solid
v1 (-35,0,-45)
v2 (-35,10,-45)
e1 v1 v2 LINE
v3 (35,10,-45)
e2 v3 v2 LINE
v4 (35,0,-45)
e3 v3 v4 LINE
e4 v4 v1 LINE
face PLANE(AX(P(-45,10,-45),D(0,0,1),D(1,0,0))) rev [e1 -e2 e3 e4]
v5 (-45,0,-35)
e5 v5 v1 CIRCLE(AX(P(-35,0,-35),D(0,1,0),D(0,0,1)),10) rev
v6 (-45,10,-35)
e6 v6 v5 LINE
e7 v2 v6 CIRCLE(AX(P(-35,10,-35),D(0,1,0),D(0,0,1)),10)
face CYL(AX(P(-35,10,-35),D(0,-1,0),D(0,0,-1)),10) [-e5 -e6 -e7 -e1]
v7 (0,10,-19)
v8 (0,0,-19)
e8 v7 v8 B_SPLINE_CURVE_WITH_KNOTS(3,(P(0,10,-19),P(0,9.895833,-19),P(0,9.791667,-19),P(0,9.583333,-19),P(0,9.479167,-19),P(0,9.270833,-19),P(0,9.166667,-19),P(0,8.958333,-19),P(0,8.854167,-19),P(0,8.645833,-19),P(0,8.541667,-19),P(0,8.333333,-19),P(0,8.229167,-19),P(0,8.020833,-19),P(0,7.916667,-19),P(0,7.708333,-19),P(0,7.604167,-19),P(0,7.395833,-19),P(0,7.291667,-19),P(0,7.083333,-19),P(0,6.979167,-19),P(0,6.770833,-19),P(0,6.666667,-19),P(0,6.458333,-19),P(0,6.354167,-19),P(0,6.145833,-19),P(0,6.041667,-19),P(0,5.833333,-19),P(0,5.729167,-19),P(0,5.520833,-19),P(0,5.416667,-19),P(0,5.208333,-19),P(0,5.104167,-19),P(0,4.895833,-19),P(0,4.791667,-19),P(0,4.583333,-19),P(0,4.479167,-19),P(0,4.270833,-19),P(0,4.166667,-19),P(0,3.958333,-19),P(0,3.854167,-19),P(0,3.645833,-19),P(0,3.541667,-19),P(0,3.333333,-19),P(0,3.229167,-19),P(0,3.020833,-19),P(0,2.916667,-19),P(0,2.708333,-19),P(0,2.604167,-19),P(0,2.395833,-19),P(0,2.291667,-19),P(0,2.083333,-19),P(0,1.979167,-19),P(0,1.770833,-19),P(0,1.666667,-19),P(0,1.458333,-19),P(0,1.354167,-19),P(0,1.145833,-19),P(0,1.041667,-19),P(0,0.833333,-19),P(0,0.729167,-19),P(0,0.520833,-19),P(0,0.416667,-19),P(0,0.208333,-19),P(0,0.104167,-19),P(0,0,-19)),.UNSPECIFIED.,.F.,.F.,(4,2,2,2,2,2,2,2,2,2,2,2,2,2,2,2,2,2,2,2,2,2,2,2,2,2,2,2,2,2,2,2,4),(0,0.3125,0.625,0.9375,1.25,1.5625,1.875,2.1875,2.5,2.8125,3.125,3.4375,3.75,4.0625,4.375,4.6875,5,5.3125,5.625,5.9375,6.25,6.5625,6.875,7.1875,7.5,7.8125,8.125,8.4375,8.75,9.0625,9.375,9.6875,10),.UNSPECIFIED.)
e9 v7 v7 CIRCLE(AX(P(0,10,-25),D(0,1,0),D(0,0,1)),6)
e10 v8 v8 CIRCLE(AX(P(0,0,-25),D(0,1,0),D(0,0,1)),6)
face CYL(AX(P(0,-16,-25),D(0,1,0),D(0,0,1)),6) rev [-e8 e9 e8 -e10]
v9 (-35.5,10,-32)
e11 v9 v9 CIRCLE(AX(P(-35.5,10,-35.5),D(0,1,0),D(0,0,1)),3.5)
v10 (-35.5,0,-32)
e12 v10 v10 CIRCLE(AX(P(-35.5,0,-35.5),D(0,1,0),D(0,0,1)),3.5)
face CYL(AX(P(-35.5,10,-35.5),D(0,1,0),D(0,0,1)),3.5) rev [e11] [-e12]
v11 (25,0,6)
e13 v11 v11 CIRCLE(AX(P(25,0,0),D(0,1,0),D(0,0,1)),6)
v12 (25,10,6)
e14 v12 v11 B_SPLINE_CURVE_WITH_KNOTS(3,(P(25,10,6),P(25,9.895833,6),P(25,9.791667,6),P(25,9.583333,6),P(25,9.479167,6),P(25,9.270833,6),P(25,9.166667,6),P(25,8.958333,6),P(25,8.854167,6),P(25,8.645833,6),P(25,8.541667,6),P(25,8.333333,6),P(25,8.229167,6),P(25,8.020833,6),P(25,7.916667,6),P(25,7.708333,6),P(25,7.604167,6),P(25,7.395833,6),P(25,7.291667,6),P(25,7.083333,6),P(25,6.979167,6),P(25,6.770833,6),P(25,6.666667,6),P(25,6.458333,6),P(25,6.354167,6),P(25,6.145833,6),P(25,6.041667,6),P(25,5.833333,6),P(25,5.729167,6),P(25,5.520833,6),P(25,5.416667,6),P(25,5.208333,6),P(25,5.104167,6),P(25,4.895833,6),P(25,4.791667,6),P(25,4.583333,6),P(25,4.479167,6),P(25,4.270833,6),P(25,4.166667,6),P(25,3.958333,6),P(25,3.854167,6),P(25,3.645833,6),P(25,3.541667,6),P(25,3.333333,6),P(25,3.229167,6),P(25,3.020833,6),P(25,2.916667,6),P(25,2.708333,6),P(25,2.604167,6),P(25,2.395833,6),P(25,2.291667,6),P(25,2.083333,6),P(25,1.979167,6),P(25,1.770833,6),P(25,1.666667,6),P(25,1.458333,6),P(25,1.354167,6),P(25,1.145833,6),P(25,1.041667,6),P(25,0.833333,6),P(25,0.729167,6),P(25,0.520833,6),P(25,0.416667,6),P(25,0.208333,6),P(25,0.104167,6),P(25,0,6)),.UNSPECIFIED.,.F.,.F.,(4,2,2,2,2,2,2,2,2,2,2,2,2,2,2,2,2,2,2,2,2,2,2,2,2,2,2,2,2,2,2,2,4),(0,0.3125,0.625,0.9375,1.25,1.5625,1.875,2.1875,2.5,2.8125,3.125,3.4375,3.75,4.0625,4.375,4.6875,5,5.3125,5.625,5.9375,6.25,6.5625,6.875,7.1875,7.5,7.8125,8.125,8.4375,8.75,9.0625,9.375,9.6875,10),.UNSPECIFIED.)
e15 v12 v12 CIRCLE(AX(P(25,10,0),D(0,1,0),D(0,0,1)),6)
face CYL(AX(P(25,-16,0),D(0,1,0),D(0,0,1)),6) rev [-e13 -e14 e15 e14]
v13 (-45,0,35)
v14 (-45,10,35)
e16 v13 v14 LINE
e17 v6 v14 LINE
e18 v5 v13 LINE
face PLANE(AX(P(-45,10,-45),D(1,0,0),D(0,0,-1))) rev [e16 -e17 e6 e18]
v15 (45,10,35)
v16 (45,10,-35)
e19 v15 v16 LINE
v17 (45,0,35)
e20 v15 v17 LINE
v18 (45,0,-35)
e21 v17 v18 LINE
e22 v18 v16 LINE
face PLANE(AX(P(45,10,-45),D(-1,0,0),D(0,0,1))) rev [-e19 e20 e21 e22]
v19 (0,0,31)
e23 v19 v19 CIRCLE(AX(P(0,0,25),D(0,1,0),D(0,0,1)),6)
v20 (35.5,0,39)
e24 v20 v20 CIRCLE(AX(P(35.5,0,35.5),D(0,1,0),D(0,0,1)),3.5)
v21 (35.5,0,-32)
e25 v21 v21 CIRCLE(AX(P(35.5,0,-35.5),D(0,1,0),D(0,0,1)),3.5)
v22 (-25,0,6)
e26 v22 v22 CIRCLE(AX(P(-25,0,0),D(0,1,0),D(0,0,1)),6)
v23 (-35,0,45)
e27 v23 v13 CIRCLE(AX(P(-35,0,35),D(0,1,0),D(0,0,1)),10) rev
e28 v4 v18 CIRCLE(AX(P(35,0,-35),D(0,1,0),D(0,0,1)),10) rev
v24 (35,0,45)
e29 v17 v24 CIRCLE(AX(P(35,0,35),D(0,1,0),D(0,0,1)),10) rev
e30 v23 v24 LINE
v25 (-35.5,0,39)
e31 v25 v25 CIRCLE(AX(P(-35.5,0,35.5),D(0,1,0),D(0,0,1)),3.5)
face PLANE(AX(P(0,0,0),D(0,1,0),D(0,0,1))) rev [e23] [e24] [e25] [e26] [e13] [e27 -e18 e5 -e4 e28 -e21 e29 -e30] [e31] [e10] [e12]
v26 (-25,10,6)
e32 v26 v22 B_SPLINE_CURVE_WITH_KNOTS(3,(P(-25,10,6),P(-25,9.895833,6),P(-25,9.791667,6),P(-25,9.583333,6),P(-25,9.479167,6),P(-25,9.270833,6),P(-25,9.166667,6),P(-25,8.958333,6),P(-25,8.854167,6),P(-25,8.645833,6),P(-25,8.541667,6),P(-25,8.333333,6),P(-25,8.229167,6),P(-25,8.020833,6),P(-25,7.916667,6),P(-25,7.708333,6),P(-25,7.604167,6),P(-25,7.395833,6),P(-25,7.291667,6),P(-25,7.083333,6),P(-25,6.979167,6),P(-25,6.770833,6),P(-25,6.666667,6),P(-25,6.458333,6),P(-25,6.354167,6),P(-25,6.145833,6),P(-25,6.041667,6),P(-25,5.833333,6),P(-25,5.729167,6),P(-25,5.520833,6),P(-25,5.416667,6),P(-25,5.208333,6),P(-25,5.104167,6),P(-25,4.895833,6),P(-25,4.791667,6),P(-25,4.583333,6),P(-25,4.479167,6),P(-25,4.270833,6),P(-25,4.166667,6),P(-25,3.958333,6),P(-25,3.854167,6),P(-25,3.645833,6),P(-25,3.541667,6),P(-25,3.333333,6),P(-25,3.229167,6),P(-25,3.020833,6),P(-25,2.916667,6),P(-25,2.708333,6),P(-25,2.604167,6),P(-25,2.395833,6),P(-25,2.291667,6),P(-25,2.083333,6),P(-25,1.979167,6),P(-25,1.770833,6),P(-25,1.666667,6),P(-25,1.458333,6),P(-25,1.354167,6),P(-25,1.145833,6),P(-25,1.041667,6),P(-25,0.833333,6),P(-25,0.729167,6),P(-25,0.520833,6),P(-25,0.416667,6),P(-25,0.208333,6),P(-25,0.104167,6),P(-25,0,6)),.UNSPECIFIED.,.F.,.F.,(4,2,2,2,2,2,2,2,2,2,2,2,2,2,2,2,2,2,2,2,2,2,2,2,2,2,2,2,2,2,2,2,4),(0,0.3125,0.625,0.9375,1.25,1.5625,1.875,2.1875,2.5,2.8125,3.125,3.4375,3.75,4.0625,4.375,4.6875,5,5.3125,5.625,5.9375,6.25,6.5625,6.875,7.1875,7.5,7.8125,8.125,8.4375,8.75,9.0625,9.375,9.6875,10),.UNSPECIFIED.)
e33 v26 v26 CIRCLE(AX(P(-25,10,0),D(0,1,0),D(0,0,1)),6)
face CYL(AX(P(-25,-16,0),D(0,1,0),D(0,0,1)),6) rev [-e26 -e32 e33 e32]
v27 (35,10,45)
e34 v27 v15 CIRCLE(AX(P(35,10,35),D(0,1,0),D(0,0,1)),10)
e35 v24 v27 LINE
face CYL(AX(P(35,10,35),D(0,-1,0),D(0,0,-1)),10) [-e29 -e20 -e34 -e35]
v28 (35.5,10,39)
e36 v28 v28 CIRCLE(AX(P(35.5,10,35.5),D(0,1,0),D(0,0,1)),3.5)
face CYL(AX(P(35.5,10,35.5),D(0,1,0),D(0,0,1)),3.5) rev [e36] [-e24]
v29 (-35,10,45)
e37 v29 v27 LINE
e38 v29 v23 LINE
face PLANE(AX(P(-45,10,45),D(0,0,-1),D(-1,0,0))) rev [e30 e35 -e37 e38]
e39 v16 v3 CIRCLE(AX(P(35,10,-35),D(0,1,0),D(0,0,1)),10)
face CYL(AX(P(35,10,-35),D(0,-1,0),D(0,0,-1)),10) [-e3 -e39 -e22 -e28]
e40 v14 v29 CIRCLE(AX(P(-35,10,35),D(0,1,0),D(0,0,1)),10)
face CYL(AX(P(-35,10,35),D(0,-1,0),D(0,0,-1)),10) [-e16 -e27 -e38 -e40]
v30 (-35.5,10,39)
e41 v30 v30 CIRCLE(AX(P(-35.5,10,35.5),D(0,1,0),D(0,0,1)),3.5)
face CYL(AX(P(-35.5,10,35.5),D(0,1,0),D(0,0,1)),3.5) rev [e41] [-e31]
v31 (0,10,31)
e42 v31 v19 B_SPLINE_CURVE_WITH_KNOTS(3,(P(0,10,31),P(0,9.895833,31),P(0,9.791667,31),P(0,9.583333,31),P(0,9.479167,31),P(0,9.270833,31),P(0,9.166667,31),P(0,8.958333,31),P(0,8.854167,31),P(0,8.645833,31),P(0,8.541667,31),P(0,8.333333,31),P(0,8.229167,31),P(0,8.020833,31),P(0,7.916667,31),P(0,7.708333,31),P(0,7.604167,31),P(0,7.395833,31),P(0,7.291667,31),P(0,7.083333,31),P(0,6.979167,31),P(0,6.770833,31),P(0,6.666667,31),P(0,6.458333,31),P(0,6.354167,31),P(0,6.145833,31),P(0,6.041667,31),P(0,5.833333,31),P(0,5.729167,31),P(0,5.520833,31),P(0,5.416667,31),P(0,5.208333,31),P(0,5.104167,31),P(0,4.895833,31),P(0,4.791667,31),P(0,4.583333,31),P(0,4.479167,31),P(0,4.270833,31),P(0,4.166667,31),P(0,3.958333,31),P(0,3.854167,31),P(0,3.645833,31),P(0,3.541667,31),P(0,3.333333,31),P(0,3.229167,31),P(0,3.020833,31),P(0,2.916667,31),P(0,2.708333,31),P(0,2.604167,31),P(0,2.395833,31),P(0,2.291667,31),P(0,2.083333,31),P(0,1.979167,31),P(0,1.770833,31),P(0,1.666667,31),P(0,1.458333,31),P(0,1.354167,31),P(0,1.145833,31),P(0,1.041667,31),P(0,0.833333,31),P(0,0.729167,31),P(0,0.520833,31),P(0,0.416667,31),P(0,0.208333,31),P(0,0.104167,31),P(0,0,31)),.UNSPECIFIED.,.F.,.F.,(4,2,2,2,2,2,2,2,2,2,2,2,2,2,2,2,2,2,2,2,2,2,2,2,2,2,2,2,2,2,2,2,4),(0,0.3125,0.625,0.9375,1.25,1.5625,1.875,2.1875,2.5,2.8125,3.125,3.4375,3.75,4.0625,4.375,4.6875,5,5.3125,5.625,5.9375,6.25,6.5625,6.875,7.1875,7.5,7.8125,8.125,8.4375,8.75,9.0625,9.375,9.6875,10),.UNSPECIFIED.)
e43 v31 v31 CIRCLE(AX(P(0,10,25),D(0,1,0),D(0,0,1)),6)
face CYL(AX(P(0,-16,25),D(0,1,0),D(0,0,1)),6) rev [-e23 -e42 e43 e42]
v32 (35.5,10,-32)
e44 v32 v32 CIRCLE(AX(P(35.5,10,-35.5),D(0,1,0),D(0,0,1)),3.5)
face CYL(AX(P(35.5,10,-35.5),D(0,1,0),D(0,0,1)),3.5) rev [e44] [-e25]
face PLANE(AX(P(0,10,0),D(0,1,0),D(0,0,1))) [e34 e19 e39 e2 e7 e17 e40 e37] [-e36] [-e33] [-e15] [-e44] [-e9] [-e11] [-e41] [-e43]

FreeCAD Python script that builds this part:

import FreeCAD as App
import Part
import Sketcher
from FreeCAD import Vector
Q = App.Units.Quantity


def edges_at(feature, points):
    """Names of the edges that pass closest to the given points."""
    edges = feature.Shape.Edges
    near = lambda p: min(range(len(edges)), key=lambda i: edges[i].distToShape(Part.Vertex(*p))[0])
    return sorted({f"Edge{near(p) + 1}" for p in points})

doc = App.newDocument("Part")
body = doc.addObject("PartDesign::Body", "Body")

sketch1 = doc.addObject("Sketcher::SketchObject", "Sketch")
body.addObject(sketch1)
sketch1.AttachmentSupport = (doc.XZ_Plane, [""])
sketch1.MapMode = "FlatFace"
sketch1.addGeometry([
    Part.LineSegment(Vector(-45, -45, 0), Vector(-45, 45, 0)),
    Part.LineSegment(Vector(-45, 45, 0), Vector(45, 45, 0)),
    Part.LineSegment(Vector(45, 45, 0), Vector(45, -45, 0)),
    Part.LineSegment(Vector(45, -45, 0), Vector(-45, -45, 0)),
], False)
sketch1.addConstraint([
    Sketcher.Constraint("Coincident", 0, 2, 1, 1),
    Sketcher.Constraint("Coincident", 1, 2, 2, 1),
    Sketcher.Constraint("Coincident", 2, 2, 3, 1),
    Sketcher.Constraint("Coincident", 3, 2, 0, 1),
    Sketcher.Constraint("Vertical", 0),
    Sketcher.Constraint("Horizontal", 1),
    Sketcher.Constraint("Vertical", 2),
    Sketcher.Constraint("Horizontal", 3),
    Sketcher.Constraint("Symmetric", 0, 2, 2, 2, -1, 1),
    Sketcher.Constraint("Equal", 3, 0),
    Sketcher.Constraint("DistanceX", 1, 1, 1, 2, Q("90 mm")),
])
pad1 = doc.addObject("PartDesign::Pad", "Pad")
body.addObject(pad1)
pad1.Profile = sketch1
pad1.Length = 10
pad1.Reversed = True

sketch2 = doc.addObject("Sketcher::SketchObject", "Sketch001")
body.addObject(sketch2)
sketch2.AttachmentSupport = (doc.XZ_Plane, [""])
sketch2.MapMode = "FlatFace"
sketch2.AttachmentOffset = App.Placement(Vector(0, 0, -10), App.Rotation())
sketch2.addGeometry([
    Part.Circle(Vector(-35.5, -35.5, 0), Vector(0, 0, 1), 3.5),
    Part.Circle(Vector(35.5, -35.5, 0), Vector(0, 0, 1), 3.5),
    Part.Circle(Vector(-35.5, 35.5, 0), Vector(0, 0, 1), 3.5),
    Part.Circle(Vector(35.5, 35.5, 0), Vector(0, 0, 1), 3.5),
], False)
sketch2.addConstraint([
    Sketcher.Constraint("Equal", 0, 1),
    Sketcher.Constraint("Equal", 1, 2),
    Sketcher.Constraint("Equal", 2, 3),
    Sketcher.Constraint("Symmetric", 1, 3, 2, 3, -1, 1),
    Sketcher.Constraint("Symmetric", 0, 3, 3, 3, -1, 1),
    Sketcher.Constraint("Symmetric", 0, 3, 1, 3, -2),
    Sketcher.Constraint("Diameter", 0, Q("7 mm")),
    Sketcher.Constraint("DistanceX", 0, 3, 1, 3, Q("71 mm")),
    Sketcher.Constraint("DistanceY", 0, 3, 2, 3, Q("71 mm")),
])
doc.recompute()
hole = doc.addObject("PartDesign::Hole", "Hole")
body.addObject(hole)
hole.Profile = sketch2
hole.ThreadType = "None"
hole.Diameter = 7
hole.DepthType = "ThroughAll"
hole.Reversed = True

sketch3 = doc.addObject("Sketcher::SketchObject", "Sketch002")
body.addObject(sketch3)
sketch3.AttachmentSupport = (doc.XZ_Plane, [""])
sketch3.MapMode = "FlatFace"
sketch3.AttachmentOffset = App.Placement(Vector(0, 0, -10), App.Rotation())
sketch3.addGeometry([
    Part.Circle(Vector(0, -25, 0), Vector(0, 0, 1), 6),
    Part.Circle(Vector(-25, 0, 0), Vector(0, 0, 1), 6),
    Part.Circle(Vector(0, 25, 0), Vector(0, 0, 1), 6),
    Part.Circle(Vector(25, 0, 0), Vector(0, 0, 1), 6),
], False)
sketch3.addConstraint([
    Sketcher.Constraint("Equal", 0, 1),
    Sketcher.Constraint("Equal", 1, 2),
    Sketcher.Constraint("Equal", 2, 3),
    Sketcher.Constraint("Symmetric", 0, 3, 2, 3, -1, 1),
    Sketcher.Constraint("Symmetric", 1, 3, 3, 3, -1, 1),
    Sketcher.Constraint("PointOnObject", 0, 3, -2),
    Sketcher.Constraint("PointOnObject", 1, 3, -1),
    Sketcher.Constraint("Diameter", 0, Q("12 mm")),
    Sketcher.Constraint("DistanceY", 0, 3, -1, 1, Q("25 mm")),
    Sketcher.Constraint("DistanceX", 1, 3, -1, 1, Q("25 mm")),
])
pocket1 = doc.addObject("PartDesign::Pocket", "Pocket")
body.addObject(pocket1)
pocket1.Profile = sketch3
pocket1.Length = 26
pocket1.Reversed = True
doc.recompute()

fillet = doc.addObject("PartDesign::Fillet", "Fillet")
body.addObject(fillet)
fillet.Base = (pocket1, edges_at(pocket1, [
    (45, 5, 45),
    (-45, 5, 45),
    (-45, 5, -45),
    (45, 5, -45),
]))
fillet.Radius = 10

doc.recompute()
